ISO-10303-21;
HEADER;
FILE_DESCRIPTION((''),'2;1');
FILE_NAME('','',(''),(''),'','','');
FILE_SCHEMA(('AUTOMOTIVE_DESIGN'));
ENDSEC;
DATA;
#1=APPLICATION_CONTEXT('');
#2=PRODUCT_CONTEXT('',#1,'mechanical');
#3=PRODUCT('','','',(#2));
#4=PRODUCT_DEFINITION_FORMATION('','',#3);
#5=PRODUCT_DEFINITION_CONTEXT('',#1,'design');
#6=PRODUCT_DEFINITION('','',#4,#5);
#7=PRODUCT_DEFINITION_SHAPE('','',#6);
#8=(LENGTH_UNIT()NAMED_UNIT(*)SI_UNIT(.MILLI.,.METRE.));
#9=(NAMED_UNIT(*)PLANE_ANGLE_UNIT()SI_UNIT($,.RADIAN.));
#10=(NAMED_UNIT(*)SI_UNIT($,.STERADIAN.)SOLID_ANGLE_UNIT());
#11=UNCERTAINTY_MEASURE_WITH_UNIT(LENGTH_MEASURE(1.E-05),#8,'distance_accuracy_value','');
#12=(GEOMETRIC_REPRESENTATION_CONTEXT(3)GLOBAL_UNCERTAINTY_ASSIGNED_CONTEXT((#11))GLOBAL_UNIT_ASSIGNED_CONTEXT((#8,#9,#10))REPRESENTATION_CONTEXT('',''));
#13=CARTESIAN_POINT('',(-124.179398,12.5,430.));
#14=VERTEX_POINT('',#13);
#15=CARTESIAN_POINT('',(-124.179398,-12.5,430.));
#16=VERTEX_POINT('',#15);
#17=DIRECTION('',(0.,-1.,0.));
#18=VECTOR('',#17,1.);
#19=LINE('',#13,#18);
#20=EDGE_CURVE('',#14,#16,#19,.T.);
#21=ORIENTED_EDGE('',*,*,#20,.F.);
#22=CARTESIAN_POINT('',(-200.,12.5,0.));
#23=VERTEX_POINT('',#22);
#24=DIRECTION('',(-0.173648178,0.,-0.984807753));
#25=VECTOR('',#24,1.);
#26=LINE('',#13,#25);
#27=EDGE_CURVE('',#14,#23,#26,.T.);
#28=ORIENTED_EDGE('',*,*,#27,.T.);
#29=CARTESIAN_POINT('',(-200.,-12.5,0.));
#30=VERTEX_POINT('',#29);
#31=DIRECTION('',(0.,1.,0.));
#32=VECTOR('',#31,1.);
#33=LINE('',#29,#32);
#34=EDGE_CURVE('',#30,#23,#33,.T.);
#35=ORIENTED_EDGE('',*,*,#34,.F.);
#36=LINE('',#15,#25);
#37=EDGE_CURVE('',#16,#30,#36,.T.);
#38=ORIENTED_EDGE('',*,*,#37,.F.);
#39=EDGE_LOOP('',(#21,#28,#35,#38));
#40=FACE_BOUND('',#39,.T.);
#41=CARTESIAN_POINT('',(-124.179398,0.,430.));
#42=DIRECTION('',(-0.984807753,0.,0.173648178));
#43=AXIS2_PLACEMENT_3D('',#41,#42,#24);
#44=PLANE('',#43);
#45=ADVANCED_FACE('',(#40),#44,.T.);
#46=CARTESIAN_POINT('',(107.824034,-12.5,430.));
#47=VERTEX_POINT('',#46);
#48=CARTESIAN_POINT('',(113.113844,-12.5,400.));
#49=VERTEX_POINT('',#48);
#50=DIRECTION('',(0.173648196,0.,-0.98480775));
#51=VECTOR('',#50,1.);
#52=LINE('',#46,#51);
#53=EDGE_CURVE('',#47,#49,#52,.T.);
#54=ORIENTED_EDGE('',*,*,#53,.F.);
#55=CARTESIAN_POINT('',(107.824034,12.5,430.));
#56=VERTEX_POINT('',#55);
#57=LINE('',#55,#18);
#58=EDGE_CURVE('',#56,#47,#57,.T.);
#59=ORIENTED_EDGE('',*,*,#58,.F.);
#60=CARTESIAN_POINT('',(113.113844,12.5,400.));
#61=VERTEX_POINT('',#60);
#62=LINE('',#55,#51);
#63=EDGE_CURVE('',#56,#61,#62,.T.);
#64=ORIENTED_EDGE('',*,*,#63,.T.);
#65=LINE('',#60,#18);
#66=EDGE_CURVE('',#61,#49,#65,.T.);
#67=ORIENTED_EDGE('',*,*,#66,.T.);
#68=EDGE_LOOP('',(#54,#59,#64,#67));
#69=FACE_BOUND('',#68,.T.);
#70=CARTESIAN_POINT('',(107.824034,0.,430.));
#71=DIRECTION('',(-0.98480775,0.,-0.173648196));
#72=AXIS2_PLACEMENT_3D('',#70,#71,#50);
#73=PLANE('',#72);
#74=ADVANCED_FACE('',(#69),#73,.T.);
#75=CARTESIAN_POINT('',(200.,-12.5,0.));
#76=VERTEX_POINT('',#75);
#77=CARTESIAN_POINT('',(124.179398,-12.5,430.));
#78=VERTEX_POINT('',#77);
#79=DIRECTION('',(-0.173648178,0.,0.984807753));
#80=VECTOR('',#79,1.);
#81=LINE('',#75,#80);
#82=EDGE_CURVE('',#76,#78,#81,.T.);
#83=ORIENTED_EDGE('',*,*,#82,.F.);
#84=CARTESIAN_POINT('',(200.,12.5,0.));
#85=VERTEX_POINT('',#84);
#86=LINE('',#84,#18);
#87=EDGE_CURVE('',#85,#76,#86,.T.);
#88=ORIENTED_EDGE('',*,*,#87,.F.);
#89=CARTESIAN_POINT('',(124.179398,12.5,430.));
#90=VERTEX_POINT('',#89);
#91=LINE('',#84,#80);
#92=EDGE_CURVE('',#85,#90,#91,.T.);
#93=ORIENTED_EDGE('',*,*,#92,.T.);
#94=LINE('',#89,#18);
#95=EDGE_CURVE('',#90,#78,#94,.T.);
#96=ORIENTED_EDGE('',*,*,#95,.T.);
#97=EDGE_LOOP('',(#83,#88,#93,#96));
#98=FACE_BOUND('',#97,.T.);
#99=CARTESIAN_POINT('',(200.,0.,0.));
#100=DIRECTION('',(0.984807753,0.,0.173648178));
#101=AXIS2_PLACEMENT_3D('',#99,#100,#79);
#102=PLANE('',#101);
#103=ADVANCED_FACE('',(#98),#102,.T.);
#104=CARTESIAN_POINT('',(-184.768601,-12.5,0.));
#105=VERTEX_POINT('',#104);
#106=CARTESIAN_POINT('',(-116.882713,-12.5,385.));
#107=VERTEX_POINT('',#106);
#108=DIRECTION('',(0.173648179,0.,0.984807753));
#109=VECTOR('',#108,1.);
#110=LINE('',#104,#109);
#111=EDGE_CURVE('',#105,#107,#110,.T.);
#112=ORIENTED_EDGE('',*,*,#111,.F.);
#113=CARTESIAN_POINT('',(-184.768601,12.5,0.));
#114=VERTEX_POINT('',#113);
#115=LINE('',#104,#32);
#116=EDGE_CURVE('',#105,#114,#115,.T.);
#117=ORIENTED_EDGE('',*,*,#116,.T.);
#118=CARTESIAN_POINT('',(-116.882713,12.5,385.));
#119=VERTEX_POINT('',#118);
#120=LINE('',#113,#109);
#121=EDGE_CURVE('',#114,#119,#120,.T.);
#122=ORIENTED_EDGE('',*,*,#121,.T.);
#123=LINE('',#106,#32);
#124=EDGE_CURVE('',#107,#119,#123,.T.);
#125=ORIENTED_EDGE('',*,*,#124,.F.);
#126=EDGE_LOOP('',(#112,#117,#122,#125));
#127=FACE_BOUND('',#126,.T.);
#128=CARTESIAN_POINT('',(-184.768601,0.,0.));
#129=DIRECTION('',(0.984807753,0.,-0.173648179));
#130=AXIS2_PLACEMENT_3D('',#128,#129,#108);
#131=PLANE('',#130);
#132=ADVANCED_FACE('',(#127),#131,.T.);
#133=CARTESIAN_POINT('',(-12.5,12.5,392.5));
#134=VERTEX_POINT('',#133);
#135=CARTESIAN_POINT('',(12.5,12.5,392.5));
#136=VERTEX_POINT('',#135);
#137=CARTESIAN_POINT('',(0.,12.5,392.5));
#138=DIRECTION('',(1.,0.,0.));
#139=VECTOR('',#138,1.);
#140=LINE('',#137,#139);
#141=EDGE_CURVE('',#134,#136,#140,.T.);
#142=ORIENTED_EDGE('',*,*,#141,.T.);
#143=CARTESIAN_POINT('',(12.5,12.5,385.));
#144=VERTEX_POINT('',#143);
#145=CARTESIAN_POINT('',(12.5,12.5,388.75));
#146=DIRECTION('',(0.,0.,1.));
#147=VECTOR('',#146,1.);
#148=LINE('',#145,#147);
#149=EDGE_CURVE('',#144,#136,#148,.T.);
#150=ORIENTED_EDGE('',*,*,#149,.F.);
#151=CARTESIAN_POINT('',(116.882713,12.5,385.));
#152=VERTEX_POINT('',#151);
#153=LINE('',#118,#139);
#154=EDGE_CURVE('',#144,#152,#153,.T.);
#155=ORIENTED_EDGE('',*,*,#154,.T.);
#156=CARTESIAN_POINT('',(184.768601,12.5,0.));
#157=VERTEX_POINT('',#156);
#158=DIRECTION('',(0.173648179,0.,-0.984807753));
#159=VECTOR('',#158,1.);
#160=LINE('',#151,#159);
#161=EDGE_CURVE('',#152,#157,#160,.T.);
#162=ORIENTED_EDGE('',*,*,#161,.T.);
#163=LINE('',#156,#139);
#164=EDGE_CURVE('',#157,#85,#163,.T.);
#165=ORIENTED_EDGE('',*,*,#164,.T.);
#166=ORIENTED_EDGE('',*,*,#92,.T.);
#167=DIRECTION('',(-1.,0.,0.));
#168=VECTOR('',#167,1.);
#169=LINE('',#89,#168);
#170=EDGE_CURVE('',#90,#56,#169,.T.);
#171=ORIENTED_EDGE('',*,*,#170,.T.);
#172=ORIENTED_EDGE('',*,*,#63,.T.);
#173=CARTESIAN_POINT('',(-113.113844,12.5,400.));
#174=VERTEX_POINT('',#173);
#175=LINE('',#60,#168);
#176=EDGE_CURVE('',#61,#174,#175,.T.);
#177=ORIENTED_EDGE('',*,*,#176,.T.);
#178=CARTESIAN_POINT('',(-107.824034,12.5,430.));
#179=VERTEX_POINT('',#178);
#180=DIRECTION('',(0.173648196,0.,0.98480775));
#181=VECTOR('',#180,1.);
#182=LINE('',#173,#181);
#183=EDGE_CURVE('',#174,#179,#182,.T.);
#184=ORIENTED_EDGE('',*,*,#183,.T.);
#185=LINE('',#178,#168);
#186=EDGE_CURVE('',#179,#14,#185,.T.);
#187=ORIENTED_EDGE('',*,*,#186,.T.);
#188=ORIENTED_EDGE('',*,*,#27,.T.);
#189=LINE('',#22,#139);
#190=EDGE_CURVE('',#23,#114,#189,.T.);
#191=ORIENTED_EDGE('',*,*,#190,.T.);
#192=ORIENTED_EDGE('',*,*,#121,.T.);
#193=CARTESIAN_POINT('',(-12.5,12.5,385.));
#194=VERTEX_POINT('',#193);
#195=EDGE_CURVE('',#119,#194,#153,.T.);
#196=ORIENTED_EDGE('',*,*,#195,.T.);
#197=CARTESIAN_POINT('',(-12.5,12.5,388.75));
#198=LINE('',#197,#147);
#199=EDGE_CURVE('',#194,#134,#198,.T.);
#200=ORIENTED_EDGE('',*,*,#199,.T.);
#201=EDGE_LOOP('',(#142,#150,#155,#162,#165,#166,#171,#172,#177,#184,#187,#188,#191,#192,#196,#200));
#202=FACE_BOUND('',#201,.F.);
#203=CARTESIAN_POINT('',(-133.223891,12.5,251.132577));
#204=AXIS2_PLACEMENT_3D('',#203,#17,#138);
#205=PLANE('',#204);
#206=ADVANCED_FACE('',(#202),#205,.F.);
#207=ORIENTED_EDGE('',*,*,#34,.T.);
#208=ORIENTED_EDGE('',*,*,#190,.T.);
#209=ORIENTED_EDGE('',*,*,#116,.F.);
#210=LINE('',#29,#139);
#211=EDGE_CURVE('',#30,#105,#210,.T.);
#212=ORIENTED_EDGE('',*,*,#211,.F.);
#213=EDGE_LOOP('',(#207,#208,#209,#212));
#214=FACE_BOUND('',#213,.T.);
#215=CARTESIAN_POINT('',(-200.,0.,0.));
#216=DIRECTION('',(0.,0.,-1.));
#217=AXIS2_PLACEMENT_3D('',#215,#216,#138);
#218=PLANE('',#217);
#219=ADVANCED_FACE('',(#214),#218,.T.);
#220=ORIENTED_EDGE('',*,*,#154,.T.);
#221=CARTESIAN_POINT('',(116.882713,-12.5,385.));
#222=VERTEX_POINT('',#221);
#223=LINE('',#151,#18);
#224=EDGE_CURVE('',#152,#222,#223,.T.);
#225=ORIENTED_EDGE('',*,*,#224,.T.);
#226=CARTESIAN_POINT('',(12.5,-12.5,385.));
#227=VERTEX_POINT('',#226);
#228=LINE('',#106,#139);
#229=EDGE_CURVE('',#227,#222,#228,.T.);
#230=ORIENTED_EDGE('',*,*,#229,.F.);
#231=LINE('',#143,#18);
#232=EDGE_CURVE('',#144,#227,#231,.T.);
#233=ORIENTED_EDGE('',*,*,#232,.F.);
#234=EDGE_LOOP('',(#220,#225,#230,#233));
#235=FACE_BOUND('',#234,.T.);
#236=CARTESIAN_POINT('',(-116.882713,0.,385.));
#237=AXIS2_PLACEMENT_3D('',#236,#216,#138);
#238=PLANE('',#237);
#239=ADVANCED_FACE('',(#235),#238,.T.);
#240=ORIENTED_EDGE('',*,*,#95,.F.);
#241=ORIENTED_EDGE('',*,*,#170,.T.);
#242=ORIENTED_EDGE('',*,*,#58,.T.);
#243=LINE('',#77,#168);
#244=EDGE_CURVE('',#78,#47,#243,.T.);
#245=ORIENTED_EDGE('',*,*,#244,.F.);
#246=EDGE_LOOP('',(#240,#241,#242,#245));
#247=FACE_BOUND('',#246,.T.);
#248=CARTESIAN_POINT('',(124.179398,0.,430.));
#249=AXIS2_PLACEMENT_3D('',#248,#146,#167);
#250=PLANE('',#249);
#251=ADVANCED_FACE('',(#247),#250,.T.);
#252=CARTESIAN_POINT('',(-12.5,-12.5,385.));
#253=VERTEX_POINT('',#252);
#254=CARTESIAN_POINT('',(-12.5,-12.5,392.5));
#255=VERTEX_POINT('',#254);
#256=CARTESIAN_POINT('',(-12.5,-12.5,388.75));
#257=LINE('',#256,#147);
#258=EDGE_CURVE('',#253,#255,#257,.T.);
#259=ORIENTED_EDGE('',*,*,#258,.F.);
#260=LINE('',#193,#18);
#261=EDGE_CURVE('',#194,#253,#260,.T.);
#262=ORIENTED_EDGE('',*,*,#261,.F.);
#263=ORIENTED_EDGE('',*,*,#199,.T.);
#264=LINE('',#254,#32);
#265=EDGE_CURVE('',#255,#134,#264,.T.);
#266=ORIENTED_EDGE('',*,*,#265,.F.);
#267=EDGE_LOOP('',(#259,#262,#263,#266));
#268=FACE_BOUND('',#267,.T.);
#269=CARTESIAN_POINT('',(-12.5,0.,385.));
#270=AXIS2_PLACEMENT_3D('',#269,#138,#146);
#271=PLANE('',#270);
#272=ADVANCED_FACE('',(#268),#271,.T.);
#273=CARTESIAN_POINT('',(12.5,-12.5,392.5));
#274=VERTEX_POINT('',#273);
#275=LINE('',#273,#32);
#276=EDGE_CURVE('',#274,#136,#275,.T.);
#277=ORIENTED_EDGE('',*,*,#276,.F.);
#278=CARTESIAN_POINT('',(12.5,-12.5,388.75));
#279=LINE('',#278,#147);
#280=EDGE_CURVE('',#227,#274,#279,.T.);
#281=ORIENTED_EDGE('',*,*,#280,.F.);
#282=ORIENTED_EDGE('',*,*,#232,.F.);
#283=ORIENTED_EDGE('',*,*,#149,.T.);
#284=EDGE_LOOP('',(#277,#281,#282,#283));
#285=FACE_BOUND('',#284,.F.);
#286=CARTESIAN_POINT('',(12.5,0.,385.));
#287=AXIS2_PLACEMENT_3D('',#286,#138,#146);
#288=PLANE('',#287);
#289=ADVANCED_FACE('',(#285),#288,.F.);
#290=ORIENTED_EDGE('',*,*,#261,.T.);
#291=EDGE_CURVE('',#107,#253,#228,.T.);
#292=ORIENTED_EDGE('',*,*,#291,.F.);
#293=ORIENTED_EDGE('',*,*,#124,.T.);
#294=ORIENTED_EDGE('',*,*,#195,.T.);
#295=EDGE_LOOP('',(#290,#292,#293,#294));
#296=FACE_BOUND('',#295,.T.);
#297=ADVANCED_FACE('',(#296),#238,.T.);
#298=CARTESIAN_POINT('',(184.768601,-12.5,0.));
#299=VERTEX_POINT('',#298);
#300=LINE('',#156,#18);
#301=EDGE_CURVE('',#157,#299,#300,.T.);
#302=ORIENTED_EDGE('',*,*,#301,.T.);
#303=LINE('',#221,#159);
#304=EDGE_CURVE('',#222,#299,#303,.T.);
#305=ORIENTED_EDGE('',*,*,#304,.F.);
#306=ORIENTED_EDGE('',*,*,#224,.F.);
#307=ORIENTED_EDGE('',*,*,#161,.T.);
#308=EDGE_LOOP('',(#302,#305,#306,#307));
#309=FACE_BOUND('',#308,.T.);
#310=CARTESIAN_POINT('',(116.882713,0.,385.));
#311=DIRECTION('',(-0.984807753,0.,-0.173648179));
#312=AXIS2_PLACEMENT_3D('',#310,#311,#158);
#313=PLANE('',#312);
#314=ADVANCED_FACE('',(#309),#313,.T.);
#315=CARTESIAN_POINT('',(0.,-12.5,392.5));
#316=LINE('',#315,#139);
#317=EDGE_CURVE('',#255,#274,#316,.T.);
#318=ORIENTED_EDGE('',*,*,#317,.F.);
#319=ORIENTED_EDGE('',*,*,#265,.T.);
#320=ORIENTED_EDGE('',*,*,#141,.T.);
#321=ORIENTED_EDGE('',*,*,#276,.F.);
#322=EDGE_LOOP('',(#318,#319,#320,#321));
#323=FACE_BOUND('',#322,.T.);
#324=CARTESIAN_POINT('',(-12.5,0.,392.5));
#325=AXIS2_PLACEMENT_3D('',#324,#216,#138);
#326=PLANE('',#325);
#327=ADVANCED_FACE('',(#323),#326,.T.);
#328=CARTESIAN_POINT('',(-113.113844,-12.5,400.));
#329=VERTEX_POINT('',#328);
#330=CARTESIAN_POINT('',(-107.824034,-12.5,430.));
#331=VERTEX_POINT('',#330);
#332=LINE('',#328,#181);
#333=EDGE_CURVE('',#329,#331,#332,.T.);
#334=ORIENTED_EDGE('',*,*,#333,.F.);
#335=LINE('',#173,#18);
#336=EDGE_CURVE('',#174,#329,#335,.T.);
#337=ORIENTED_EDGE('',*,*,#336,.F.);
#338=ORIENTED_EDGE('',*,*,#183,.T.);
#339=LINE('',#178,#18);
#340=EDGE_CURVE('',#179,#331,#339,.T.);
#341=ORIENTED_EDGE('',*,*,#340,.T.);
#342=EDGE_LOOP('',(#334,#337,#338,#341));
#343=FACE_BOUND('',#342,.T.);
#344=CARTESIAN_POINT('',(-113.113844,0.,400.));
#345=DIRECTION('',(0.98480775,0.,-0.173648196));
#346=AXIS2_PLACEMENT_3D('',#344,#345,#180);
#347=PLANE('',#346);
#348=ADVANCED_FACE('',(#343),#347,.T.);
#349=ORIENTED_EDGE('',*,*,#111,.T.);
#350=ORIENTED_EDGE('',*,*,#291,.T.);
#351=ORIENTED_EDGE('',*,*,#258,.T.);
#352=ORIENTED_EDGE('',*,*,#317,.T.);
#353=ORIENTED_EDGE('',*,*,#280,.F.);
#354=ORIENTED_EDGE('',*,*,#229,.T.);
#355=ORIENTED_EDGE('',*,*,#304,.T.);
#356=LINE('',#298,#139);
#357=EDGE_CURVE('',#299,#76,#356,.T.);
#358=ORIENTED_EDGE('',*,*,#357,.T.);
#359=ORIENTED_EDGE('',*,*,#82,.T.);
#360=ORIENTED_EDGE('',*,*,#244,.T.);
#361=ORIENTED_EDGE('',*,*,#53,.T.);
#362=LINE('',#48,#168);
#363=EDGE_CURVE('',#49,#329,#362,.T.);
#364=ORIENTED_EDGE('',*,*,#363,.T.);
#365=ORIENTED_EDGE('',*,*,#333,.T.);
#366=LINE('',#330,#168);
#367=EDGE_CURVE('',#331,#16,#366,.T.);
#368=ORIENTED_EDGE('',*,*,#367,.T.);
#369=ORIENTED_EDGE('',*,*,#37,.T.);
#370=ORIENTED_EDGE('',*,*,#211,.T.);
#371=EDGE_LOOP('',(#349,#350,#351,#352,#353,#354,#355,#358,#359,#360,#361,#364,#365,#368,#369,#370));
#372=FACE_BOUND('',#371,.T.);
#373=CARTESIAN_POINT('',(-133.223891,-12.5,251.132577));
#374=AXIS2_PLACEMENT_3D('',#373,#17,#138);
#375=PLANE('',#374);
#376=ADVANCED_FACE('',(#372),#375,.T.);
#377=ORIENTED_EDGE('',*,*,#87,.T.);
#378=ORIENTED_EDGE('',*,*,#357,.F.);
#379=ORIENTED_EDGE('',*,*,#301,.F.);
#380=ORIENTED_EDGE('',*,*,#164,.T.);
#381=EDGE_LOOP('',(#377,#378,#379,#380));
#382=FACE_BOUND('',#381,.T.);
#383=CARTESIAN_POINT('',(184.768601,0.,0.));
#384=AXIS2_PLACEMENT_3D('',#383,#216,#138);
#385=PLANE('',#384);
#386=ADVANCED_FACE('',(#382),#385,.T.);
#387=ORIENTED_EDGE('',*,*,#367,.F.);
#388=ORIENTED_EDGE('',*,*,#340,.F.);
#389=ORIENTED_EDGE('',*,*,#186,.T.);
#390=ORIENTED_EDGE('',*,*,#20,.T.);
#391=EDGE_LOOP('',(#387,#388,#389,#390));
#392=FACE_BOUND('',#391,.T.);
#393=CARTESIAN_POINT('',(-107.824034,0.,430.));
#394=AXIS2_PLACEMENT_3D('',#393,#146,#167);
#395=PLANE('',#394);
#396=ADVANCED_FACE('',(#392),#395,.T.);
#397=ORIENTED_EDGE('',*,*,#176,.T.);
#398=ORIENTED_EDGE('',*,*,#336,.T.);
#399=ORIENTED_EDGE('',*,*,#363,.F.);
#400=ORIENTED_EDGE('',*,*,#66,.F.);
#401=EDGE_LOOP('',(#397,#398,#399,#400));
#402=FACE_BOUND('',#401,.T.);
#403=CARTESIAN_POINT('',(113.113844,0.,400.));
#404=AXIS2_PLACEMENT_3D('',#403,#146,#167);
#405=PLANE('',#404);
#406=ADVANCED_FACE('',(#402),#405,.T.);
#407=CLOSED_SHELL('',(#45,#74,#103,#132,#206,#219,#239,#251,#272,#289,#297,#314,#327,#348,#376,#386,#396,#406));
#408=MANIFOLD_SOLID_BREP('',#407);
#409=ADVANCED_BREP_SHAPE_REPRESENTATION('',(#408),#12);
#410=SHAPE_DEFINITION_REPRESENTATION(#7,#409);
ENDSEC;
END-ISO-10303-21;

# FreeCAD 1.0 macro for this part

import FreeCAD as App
import Part
import Sketcher

V = App.Vector
Q = App.Units.Quantity


def add_polygon(sketch, points):
    """Adds a closed chain of lines whose ends are joined by coincident constraints."""
    first, n = sketch.GeometryCount, len(points)
    for a, b in zip(points, points[1:] + points[:1]):
        sketch.addGeometry(Part.LineSegment(App.Vector(*a, 0), App.Vector(*b, 0)), False)
    for i in range(n):
        sketch.addConstraint(Sketcher.Constraint("Coincident", first + i, 2, first + (i + 1) % n, 1))

doc = App.newDocument("Part")
body = doc.addObject("PartDesign::Body", "Body")

sketch1 = body.newObject("Sketcher::SketchObject", "Sketch")
sketch1.AttachmentSupport = (doc.getObject("XZ_Plane"), [""])
sketch1.MapMode = "FlatFace"
add_polygon(sketch1, [(-117, 385), (117, 385), (185, 0), (200, 0), (124, 430), (108, 430), (113, 400), (-113, 400), (-108, 430), (-124, 430), (-200, 0), (-185, 0)])
sketch1.addConstraint(Sketcher.Constraint("Horizontal", 0))
sketch1.addConstraint(Sketcher.Constraint("Horizontal", 2))
sketch1.addConstraint(Sketcher.Constraint("Horizontal", 4))
sketch1.addConstraint(Sketcher.Constraint("Horizontal", 6))
sketch1.addConstraint(Sketcher.Constraint("Horizontal", 8))
sketch1.addConstraint(Sketcher.Constraint("Horizontal", 10))
sketch1.addConstraint(Sketcher.Constraint("Symmetric", 2, 2, 9, 2, -1, 1))
sketch1.addConstraint(Sketcher.Constraint("Symmetric", 4, 2, 7, 2, -2))
sketch1.addConstraint(Sketcher.Constraint("Symmetric", 1, 2, 10, 2, -2))
sketch1.addConstraint(Sketcher.Constraint("Parallel", 1, 3))
sketch1.addConstraint(Sketcher.Constraint("Parallel", 3, 5))
sketch1.addConstraint(Sketcher.Constraint("Parallel", 7, 9))
sketch1.addConstraint(Sketcher.Constraint("Parallel", 9, 11))
sketch1.addConstraint(Sketcher.Constraint("Equal", 4, 8))
sketch1.addConstraint(Sketcher.Constraint("Angle", 1, Q("-80 deg")))
sketch1.addConstraint(Sketcher.Constraint("DistanceY", -1, 1, 0, 2, 385.0))
sketch1.addConstraint(Sketcher.Constraint("DistanceX", -1, 1, 2, 2, 200.0))
sketch1.addConstraint(Sketcher.Constraint("DistanceY", -1, 1, 3, 2, 430.0))
sketch1.addConstraint(Sketcher.Constraint("DistanceY", -1, 1, 5, 2, 400.0))
sketch1.addConstraint(Sketcher.Constraint("DistanceX", 2, 1, 2, 2, 15.231399))
sketch1.addConstraint(Sketcher.Constraint("DistanceX", 6, 2, 6, 1, 226.227688))
pad1 = body.newObject("PartDesign::Pad", "Pad")
pad1.Profile = sketch1
pad1.Length = 25
pad1.Midplane = True

sketch2 = body.newObject("Sketcher::SketchObject", "Sketch001")
sketch2.AttachmentSupport = (doc.getObject("XZ_Plane"), [""])
sketch2.MapMode = "FlatFace"
add_polygon(sketch2, [(-12, 392), (-12, 385), (12, 385), (12, 392)])
sketch2.addConstraint(Sketcher.Constraint("Vertical", 0))
sketch2.addConstraint(Sketcher.Constraint("Horizontal", 1))
sketch2.addConstraint(Sketcher.Constraint("Vertical", 2))
sketch2.addConstraint(Sketcher.Constraint("Horizontal", 3))
sketch2.addConstraint(Sketcher.Constraint("DistanceX", 1, 1, 1, 2, 25.0))
sketch2.addConstraint(Sketcher.Constraint("DistanceY", 0, 2, 0, 1, 7.5))
sketch2.addConstraint(Sketcher.Constraint("DistanceY", -1, 1, 0, 2, 385.0))
sketch2.addConstraint(Sketcher.Constraint("DistanceX", 0, 2, -1, 1, 12.5))
pocket1 = body.newObject("PartDesign::Pocket", "Pocket")
pocket1.Profile = sketch2
pocket1.Length = 25
pocket1.Midplane = True

doc.recompute()
